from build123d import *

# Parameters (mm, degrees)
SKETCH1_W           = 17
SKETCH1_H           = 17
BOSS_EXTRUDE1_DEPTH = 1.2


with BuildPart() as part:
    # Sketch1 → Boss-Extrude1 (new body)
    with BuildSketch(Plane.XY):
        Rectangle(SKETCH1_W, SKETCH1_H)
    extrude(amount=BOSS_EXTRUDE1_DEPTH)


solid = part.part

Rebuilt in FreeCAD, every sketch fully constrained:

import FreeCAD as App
import Part
import Sketcher


def add_polygon(sketch, points):
    """Adds a closed chain of lines whose ends are joined by coincident constraints."""
    first, n = sketch.GeometryCount, len(points)
    for a, b in zip(points, points[1:] + points[:1]):
        sketch.addGeometry(Part.LineSegment(App.Vector(*a, 0), App.Vector(*b, 0)), False)
    for i in range(n):
        sketch.addConstraint(Sketcher.Constraint("Coincident", first + i, 2, first + (i + 1) % n, 1))

doc = App.newDocument("Part")
body = doc.addObject("PartDesign::Body", "Body")

# Sketch on XY plane
sketch1 = body.newObject("Sketcher::SketchObject", "Sketch")
sketch1.AttachmentSupport = (doc.getObject("XY_Plane"), [""])
sketch1.MapMode = "FlatFace"
add_polygon(sketch1, [(-8, 8), (-8, -8), (8, -8), (8, 8)])  # lines 0-3
sketch1.addConstraint(Sketcher.Constraint("Vertical", 0))
sketch1.addConstraint(Sketcher.Constraint("Horizontal", 1))
sketch1.addConstraint(Sketcher.Constraint("Vertical", 2))
sketch1.addConstraint(Sketcher.Constraint("Horizontal", 3))
sketch1.addConstraint(Sketcher.Constraint("Symmetric", 0, 2, 2, 2, -1, 1))
sketch1.addConstraint(Sketcher.Constraint("Equal", 3, 0))
sketch1.addConstraint(Sketcher.Constraint("DistanceX", 1, 1, 1, 2, 17.0))
pad1 = body.newObject("PartDesign::Pad", "Pad")
pad1.Profile = sketch1
pad1.Length = 1.2

doc.recompute()
